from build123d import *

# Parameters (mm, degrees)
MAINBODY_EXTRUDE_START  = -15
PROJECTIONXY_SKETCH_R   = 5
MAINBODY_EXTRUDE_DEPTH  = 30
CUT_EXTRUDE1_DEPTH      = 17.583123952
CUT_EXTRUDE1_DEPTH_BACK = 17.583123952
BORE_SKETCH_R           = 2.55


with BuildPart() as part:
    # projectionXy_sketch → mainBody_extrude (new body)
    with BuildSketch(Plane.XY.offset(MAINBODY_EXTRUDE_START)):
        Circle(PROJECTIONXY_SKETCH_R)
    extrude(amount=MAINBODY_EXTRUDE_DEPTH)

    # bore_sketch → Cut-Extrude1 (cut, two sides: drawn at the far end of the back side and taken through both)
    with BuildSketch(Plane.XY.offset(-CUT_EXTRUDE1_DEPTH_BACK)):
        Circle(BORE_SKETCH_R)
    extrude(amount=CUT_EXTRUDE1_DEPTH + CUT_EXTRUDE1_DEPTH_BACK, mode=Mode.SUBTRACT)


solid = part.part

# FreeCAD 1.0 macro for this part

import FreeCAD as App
import Part
import Sketcher
from FreeCAD import Vector
Q = App.Units.Quantity

doc = App.newDocument("Part")
body = doc.addObject("PartDesign::Body", "Body")

sketch1 = body.newObject("Sketcher::SketchObject", "Sketch")
sketch1.AttachmentSupport = (doc.getObject("XY_Plane"), [""])
sketch1.MapMode = "FlatFace"
sketch1.AttachmentOffset = App.Placement(Vector(0, 0, -15), App.Rotation())
sketch1.addGeometry(Part.Circle(Vector(0, 0, 0), Vector(0, 0, 1), 5), False)
sketch1.addConstraint([
    Sketcher.Constraint("Coincident", 0, 3, -1, 1),
    Sketcher.Constraint("Diameter", 0, Q("10 mm")),
])
pad1 = body.newObject("PartDesign::Pad", "Pad")
pad1.Profile = sketch1
pad1.Length = 30

sketch2 = body.newObject("Sketcher::SketchObject", "Sketch001")
sketch2.AttachmentSupport = (doc.getObject("XY_Plane"), [""])
sketch2.MapMode = "FlatFace"
sketch2.addGeometry(Part.Circle(Vector(0, 0, 0), Vector(0, 0, 1), 2.5), False)
sketch2.addConstraint([
    Sketcher.Constraint("Coincident", 0, 3, -1, 1),
    Sketcher.Constraint("Diameter", 0, Q("5.1 mm")),
])
pocket1 = body.newObject("PartDesign::Pocket", "Pocket")
pocket1.Profile = sketch2
pocket1.Type = "ThroughAll"
pocket1.Midplane = True

doc.recompute()
